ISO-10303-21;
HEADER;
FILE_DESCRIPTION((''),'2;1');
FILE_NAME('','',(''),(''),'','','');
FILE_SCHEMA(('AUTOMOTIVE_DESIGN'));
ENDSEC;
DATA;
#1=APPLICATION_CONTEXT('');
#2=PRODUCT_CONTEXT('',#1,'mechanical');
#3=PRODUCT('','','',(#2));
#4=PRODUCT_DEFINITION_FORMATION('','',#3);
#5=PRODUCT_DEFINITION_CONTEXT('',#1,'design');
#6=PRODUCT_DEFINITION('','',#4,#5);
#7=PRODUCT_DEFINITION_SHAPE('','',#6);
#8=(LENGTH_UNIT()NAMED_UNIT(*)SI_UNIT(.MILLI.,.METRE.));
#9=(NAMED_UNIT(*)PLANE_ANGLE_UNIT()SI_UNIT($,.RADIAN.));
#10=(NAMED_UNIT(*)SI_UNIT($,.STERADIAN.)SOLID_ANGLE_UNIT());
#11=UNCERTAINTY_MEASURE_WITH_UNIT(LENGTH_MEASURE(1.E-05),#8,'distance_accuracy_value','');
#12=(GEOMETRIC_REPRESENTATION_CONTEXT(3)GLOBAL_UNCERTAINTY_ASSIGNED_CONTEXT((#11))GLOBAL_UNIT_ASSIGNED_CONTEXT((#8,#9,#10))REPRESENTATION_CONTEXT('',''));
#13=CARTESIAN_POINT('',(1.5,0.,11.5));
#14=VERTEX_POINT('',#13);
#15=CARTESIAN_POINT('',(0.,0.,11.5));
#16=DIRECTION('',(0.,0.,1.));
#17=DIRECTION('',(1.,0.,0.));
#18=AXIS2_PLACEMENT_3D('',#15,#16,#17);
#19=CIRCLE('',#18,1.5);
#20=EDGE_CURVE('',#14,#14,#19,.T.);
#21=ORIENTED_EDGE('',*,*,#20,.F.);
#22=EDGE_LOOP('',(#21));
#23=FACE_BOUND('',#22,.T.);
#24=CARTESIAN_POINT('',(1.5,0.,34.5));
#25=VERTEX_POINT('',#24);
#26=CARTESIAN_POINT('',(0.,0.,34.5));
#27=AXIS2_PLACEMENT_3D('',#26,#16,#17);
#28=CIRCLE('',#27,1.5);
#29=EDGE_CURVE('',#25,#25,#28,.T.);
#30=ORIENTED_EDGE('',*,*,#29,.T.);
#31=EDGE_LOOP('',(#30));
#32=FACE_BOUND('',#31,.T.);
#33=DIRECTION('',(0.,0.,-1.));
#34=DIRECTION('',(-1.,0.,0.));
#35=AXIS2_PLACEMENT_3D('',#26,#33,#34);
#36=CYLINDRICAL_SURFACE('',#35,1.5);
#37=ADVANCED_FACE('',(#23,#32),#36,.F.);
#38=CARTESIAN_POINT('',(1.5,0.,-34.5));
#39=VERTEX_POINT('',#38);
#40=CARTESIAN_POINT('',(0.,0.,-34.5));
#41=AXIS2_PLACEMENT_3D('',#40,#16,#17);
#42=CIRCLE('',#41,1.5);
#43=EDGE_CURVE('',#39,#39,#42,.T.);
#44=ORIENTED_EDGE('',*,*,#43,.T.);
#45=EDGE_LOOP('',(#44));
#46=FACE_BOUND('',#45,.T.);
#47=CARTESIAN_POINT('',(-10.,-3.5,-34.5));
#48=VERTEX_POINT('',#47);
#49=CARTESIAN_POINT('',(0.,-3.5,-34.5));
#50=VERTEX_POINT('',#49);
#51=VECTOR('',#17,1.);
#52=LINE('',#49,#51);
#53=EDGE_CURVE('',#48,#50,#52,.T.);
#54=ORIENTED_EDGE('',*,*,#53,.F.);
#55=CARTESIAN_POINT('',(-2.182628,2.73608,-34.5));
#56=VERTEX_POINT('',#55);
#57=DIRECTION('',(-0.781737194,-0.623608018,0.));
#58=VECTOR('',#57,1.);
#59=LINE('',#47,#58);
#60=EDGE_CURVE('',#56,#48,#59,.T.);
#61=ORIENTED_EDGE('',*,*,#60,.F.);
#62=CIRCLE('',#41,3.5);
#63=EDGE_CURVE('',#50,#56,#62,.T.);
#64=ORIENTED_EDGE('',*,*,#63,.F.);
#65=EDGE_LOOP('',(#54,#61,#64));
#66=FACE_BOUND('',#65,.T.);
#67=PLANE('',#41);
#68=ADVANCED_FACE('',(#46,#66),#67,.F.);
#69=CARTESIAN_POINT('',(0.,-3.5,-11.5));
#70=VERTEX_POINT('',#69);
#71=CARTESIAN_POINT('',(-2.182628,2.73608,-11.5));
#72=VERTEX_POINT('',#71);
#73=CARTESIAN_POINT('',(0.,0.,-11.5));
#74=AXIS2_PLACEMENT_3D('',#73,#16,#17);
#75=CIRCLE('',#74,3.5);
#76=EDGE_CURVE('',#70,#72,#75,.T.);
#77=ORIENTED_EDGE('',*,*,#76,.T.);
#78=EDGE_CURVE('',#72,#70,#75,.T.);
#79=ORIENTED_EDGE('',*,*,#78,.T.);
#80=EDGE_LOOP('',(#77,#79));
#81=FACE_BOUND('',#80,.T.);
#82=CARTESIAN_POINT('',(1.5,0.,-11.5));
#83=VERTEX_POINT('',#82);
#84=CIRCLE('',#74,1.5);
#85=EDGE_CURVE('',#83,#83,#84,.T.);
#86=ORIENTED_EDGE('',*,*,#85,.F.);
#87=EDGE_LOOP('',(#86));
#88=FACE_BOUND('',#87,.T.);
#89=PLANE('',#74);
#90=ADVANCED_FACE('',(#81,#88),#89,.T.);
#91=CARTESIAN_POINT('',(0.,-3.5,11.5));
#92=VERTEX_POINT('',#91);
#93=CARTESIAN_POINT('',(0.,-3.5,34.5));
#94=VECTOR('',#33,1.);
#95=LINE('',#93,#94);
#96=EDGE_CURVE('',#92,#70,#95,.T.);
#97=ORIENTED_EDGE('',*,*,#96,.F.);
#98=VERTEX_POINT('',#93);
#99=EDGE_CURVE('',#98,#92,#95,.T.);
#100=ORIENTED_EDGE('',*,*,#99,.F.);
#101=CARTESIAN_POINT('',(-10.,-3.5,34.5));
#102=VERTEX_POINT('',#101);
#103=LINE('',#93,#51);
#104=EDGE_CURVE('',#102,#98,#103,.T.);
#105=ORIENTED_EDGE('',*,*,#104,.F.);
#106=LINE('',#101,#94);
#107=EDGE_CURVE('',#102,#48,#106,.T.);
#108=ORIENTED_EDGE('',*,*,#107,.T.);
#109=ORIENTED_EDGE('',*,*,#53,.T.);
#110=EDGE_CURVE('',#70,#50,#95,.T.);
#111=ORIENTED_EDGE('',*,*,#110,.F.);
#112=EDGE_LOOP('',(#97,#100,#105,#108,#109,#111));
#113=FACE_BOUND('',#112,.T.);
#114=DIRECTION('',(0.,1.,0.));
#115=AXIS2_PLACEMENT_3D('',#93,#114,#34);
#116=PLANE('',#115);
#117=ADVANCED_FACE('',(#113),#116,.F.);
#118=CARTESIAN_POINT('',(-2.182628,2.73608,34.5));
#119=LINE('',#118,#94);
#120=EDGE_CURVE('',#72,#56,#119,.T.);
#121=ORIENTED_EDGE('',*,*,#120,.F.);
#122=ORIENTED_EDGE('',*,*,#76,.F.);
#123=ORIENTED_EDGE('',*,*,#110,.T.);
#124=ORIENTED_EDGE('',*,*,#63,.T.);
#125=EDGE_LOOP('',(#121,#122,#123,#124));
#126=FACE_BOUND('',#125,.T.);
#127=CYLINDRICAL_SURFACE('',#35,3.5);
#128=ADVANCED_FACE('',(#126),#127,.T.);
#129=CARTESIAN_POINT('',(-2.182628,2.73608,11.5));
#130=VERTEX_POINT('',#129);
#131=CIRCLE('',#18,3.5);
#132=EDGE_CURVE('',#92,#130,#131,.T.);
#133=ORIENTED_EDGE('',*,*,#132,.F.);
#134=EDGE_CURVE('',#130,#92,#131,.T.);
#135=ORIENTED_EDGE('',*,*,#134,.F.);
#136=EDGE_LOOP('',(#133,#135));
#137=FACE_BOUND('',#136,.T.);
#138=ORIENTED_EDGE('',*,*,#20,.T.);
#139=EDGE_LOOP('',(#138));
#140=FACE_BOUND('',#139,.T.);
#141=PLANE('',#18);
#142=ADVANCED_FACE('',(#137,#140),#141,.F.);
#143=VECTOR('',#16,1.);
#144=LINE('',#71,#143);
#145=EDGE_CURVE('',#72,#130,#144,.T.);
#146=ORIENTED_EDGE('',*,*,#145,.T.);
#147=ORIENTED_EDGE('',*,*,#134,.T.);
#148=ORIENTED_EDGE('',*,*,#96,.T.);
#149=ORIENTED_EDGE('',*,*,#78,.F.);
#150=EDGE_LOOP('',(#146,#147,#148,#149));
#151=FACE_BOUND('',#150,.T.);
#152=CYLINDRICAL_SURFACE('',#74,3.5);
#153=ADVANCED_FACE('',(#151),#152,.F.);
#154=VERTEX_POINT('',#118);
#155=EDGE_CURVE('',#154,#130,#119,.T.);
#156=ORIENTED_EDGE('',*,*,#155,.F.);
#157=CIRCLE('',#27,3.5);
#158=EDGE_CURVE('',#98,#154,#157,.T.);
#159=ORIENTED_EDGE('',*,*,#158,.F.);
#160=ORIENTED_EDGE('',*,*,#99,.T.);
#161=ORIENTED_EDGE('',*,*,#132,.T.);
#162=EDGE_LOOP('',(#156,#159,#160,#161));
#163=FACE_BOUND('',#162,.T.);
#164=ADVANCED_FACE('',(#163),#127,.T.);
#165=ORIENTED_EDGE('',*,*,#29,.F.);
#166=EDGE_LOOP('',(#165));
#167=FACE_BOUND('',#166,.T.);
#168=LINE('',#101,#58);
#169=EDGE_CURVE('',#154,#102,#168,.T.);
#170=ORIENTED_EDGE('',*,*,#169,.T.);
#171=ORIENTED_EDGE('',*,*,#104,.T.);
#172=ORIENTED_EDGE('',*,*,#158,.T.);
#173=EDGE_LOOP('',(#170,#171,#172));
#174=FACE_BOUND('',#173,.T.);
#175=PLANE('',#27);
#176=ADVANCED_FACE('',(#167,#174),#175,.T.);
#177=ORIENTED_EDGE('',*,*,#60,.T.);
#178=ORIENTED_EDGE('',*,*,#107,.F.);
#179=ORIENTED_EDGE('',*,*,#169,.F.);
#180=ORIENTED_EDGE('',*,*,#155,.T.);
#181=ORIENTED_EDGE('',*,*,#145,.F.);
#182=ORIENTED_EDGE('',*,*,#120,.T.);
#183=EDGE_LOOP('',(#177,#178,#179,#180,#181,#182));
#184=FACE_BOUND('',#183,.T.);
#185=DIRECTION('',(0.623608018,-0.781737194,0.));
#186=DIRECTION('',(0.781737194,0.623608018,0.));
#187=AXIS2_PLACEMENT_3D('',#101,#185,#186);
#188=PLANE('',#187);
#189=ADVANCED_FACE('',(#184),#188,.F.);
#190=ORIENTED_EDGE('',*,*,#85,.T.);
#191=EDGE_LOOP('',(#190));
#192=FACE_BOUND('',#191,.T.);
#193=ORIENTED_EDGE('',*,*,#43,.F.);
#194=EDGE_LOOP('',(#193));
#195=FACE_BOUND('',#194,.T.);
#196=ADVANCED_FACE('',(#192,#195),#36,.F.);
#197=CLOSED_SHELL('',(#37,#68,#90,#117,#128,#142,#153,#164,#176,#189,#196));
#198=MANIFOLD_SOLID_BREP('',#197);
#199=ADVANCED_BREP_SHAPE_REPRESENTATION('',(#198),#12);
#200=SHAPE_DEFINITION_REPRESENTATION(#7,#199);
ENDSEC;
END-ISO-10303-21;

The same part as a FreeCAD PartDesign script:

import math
import FreeCAD as App
import Part
import Sketcher

doc = App.newDocument("Part")
body = doc.addObject("PartDesign::Body", "Body")

# Sketch on XY plane
sketch1 = body.newObject("Sketcher::SketchObject", "Sketch")
sketch1.AttachmentSupport = (doc.getObject("XY_Plane"), [""])
sketch1.MapMode = "FlatFace"
sketch1.addGeometry(Part.Circle(App.Vector(0, 0, 0), App.Vector(0, 0, 1), 3.5), False)
sketch1.addGeometry(Part.Circle(App.Vector(0, 0, 0), App.Vector(0, 0, 1), 1.5), False)
sketch1.addConstraint(Sketcher.Constraint("Coincident", 0, 3, -1, 1))
sketch1.addConstraint(Sketcher.Constraint("Coincident", 1, 3, -1, 1))
sketch1.addConstraint(Sketcher.Constraint("Diameter", 0, 7.0))
sketch1.addConstraint(Sketcher.Constraint("Diameter", 1, 3.0))
pad1 = body.newObject("PartDesign::Pad", "Pad")
pad1.Profile = sketch1
pad1.Length = 69
pad1.Midplane = True

# Sketch on XY plane
sketch2 = body.newObject("Sketcher::SketchObject", "Sketch001")
sketch2.AttachmentSupport = (doc.getObject("XY_Plane"), [""])
sketch2.MapMode = "FlatFace"
sketch2.addGeometry(Part.LineSegment(App.Vector(-10, -3.5, 0), App.Vector(0, -3.5, 0)), False)
sketch2.addGeometry(Part.ArcOfCircle(Part.Circle(App.Vector(0, 0, 0), App.Vector(0, 0, 1), 3.5), math.radians(128.580092), math.radians(270)), False)
sketch2.addGeometry(Part.LineSegment(App.Vector(-2.182628, 2.73608, 0), App.Vector(-10, -3.5, 0)), False)
sketch2.addConstraint(Sketcher.Constraint("Tangent", 0, 2, 1, 2))
sketch2.addConstraint(Sketcher.Constraint("Tangent", 1, 1, 2, 1))
sketch2.addConstraint(Sketcher.Constraint("Coincident", 2, 2, 0, 1))
sketch2.addConstraint(Sketcher.Constraint("Horizontal", 0))
sketch2.addConstraint(Sketcher.Constraint("Coincident", 1, 3, -1, 1))
sketch2.addConstraint(Sketcher.Constraint("Radius", 1, 3.5))
sketch2.addConstraint(Sketcher.Constraint("DistanceX", 0, 1, 0, 2, 10.0))
pad2 = body.newObject("PartDesign::Pad", "Pad001")
pad2.Profile = sketch2
pad2.Length = 69
pad2.Midplane = True

# Sketch on XY plane
sketch3 = body.newObject("Sketcher::SketchObject", "Sketch002")
sketch3.AttachmentSupport = (doc.getObject("XY_Plane"), [""])
sketch3.MapMode = "FlatFace"
sketch3.addGeometry(Part.Circle(App.Vector(0, 0, 0), App.Vector(0, 0, 1), 3.5), False)
sketch3.addConstraint(Sketcher.Constraint("Coincident", 0, 3, -1, 1))
sketch3.addConstraint(Sketcher.Constraint("Diameter", 0, 7.0))
pocket1 = body.newObject("PartDesign::Pocket", "Pocket")
pocket1.Profile = sketch3
pocket1.Length = 23
pocket1.Midplane = True

doc.recompute()
